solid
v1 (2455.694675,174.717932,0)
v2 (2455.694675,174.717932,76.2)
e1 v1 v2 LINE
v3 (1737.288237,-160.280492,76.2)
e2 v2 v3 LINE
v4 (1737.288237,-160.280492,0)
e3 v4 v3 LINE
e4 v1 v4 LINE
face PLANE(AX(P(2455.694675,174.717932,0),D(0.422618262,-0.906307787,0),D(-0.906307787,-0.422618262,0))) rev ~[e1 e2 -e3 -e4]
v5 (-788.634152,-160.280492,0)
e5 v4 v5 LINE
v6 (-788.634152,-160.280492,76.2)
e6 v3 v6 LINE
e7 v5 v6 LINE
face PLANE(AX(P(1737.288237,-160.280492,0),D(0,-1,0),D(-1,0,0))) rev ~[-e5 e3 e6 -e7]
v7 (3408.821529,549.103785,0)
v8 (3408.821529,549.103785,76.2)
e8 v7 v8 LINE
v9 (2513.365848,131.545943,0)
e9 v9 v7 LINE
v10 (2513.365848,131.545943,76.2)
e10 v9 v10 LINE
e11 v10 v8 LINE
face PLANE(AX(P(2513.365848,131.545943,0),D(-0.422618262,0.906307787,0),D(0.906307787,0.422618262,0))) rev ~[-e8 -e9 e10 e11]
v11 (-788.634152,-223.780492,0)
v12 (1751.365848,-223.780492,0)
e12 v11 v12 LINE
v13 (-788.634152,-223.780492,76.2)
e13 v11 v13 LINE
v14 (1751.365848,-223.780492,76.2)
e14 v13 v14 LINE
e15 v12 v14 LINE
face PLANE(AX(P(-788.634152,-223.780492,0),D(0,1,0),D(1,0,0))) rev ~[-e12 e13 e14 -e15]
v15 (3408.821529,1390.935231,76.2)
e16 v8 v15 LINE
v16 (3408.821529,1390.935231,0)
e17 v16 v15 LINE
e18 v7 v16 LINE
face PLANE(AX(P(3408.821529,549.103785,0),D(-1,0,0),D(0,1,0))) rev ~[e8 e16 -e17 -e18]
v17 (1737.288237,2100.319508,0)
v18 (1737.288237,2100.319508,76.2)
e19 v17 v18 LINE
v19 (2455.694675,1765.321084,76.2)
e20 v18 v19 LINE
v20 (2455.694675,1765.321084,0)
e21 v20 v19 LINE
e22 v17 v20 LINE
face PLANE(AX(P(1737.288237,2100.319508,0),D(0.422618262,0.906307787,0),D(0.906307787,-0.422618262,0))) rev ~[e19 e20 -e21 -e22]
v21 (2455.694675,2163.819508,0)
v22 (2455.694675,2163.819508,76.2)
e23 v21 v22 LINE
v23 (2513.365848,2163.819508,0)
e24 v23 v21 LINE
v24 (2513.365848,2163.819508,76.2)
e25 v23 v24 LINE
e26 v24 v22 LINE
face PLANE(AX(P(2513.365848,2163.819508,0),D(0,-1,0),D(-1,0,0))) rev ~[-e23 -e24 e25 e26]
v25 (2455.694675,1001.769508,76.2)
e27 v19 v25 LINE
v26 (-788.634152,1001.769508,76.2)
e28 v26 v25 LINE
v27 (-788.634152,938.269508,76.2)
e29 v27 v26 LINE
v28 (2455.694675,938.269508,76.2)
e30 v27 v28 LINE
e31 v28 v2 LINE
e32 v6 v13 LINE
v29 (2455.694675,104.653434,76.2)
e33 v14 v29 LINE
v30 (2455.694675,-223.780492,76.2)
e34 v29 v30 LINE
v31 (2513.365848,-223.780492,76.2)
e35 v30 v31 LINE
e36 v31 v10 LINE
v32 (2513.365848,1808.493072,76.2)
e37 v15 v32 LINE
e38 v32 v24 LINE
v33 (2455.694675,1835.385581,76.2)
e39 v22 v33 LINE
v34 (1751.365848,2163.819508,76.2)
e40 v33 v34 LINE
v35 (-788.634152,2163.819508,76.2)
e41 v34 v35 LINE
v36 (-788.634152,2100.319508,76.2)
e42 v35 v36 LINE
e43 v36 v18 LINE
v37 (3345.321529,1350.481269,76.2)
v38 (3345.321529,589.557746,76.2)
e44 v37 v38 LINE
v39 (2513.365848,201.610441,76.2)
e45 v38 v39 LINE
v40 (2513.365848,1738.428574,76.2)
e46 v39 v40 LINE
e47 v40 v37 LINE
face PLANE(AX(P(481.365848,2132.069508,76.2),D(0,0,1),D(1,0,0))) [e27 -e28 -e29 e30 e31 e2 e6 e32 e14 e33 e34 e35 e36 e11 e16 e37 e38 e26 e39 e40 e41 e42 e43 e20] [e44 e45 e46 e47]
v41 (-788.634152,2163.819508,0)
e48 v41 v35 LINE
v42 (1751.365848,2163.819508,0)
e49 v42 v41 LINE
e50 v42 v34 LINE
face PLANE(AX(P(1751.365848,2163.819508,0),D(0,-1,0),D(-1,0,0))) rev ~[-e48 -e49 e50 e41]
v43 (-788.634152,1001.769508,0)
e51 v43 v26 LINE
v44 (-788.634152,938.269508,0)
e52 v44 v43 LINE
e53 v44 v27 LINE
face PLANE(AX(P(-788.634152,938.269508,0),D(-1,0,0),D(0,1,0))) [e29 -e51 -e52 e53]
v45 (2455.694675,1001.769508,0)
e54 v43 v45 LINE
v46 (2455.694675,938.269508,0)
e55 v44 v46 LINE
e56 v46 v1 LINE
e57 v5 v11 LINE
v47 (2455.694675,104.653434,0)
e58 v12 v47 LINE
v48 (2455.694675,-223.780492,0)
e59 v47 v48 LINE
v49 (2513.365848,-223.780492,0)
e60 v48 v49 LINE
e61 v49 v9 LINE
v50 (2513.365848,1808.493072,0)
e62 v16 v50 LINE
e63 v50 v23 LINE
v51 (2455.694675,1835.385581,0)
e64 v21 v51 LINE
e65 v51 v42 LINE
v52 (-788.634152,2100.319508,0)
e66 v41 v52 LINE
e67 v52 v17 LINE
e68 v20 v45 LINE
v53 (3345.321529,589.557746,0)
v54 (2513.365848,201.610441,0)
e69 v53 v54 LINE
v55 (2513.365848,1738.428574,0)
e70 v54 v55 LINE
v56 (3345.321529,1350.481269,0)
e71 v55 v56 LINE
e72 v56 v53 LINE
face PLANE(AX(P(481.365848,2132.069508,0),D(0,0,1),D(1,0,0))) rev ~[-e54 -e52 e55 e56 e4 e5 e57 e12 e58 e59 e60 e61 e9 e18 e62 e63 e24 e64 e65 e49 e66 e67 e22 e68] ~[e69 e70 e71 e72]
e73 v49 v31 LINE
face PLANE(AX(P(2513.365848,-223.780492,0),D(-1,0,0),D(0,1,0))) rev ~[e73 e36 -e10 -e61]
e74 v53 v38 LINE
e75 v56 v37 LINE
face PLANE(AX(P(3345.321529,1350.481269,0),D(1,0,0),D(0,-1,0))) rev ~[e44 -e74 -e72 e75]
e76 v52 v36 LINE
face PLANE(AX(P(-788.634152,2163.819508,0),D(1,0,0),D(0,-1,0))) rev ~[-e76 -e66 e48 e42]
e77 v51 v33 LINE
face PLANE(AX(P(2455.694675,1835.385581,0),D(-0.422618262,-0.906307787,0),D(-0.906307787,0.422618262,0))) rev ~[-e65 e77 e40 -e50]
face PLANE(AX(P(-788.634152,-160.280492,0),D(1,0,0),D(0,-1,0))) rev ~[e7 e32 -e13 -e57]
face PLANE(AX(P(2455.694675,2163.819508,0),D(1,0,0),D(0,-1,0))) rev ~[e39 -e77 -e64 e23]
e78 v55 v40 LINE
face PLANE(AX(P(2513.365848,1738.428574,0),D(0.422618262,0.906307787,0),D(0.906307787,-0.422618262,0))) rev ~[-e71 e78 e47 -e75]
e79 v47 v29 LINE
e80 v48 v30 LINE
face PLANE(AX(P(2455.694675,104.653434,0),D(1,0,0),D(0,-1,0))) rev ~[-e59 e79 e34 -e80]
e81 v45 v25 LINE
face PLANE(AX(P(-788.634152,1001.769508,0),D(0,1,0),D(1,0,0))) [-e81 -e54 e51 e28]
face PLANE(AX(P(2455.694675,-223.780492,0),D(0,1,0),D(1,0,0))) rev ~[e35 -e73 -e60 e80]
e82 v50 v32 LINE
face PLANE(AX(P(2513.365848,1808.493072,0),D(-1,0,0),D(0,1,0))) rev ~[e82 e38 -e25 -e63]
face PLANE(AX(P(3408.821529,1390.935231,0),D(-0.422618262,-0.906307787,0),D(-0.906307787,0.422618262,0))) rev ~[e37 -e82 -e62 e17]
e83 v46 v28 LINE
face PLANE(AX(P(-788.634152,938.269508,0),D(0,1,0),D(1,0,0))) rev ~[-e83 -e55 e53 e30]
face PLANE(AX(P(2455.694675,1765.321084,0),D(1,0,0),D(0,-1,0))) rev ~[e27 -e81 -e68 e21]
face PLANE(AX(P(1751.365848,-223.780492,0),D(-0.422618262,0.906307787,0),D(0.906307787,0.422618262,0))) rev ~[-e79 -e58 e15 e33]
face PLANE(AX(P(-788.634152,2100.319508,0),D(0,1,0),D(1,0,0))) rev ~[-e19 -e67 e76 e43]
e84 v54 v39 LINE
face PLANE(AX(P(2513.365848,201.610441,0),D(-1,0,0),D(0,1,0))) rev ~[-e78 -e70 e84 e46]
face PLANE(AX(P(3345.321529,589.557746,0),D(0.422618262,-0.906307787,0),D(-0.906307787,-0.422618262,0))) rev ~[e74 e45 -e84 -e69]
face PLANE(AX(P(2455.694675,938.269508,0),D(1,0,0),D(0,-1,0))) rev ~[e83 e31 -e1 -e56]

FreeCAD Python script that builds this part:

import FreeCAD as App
import Part
import Sketcher
Q = App.Units.Quantity


def add_polygon(sketch, points):
    """Adds a closed chain of lines whose ends are joined by coincident constraints."""
    first, n = sketch.GeometryCount, len(points)
    for a, b in zip(points, points[1:] + points[:1]):
        sketch.addGeometry(Part.LineSegment(App.Vector(*a, 0), App.Vector(*b, 0)), False)
    for i in range(n):
        sketch.addConstraint(Sketcher.Constraint("Coincident", first + i, 2, first + (i + 1) % n, 1))

doc = App.newDocument("Part")
body = doc.addObject("PartDesign::Body", "Body")

# Sketch on XY plane
sketch1 = doc.addObject("Sketcher::SketchObject", "Sketch")
body.addObject(sketch1)
sketch1.AttachmentSupport = (doc.XY_Plane, [""])
sketch1.MapMode = "FlatFace"
add_polygon(sketch1, [(2456, 938), (2456, 175), (1737, -160), (-789, -160), (-789, -224), (1751, -224), (2456, 105), (2456, -224), (2513, -224), (2513, 132), (3409, 549), (3409, 1391), (2513, 1808), (2513, 2164), (2456, 2164), (2456, 1835), (1751, 2164), (-789, 2164), (-789, 2100), (1737, 2100), (2456, 1765), (2456, 1002), (-789, 1002), (-789, 938)])  # lines 0-23
add_polygon(sketch1, [(3345, 590), (2513, 202), (2513, 1738), (3345, 1350)])  # lines 24-27
sketch1.addConstraint(Sketcher.Constraint("Vertical", 0))
sketch1.addConstraint(Sketcher.Constraint("Horizontal", 2))
sketch1.addConstraint(Sketcher.Constraint("Vertical", 3))
sketch1.addConstraint(Sketcher.Constraint("Horizontal", 4))
sketch1.addConstraint(Sketcher.Constraint("Vertical", 6))
sketch1.addConstraint(Sketcher.Constraint("Horizontal", 7))
sketch1.addConstraint(Sketcher.Constraint("Vertical", 8))
sketch1.addConstraint(Sketcher.Constraint("Vertical", 10))
sketch1.addConstraint(Sketcher.Constraint("Vertical", 12))
sketch1.addConstraint(Sketcher.Constraint("Horizontal", 13))
sketch1.addConstraint(Sketcher.Constraint("Vertical", 14))
sketch1.addConstraint(Sketcher.Constraint("Horizontal", 16))
sketch1.addConstraint(Sketcher.Constraint("Vertical", 17))
sketch1.addConstraint(Sketcher.Constraint("Horizontal", 18))
sketch1.addConstraint(Sketcher.Constraint("Vertical", 20))
sketch1.addConstraint(Sketcher.Constraint("Horizontal", 21))
sketch1.addConstraint(Sketcher.Constraint("Vertical", 22))
sketch1.addConstraint(Sketcher.Constraint("Horizontal", 23))
sketch1.addConstraint(Sketcher.Constraint("Vertical", 25))
sketch1.addConstraint(Sketcher.Constraint("Vertical", 27))
sketch1.addConstraint(Sketcher.Constraint("Parallel", 1, 5))
sketch1.addConstraint(Sketcher.Constraint("Parallel", 5, 9))
sketch1.addConstraint(Sketcher.Constraint("Parallel", 11, 15))
sketch1.addConstraint(Sketcher.Constraint("Parallel", 15, 19))
sketch1.addConstraint(Sketcher.Constraint("Parallel", 9, 24))
sketch1.addConstraint(Sketcher.Constraint("Parallel", 19, 26))
sketch1.addConstraint(Sketcher.Constraint("Horizontal", 4, 2, 6, 2))
sketch1.addConstraint(Sketcher.Constraint("Horizontal", 13, 2, 15, 2))
sketch1.addConstraint(Sketcher.Constraint("Vertical", 0, 2, 5, 2))
sketch1.addConstraint(Sketcher.Constraint("Vertical", 8, 2, 11, 2))
sketch1.addConstraint(Sketcher.Constraint("Vertical", 6, 2, 13, 2))
sketch1.addConstraint(Sketcher.Constraint("Vertical", 4, 2, 15, 2))
sketch1.addConstraint(Sketcher.Constraint("Vertical", 3, 2, 16, 2))
sketch1.addConstraint(Sketcher.Constraint("Vertical", 1, 2, 18, 2))
sketch1.addConstraint(Sketcher.Constraint("Vertical", 14, 2, 19, 2))
sketch1.addConstraint(Sketcher.Constraint("Vertical", 17, 2, 21, 2))
sketch1.addConstraint(Sketcher.Constraint("Vertical", 12, 2, 24, 2))
sketch1.addConstraint(Sketcher.Constraint("Equal", 8, 12))
sketch1.addConstraint(Sketcher.Constraint("Equal", 6, 14))
sketch1.addConstraint(Sketcher.Constraint("Equal", 3, 17))
sketch1.addConstraint(Sketcher.Constraint("Equal", 0, 20))
sketch1.addConstraint(Sketcher.Constraint("Equal", 17, 22))
sketch1.addConstraint(Sketcher.Constraint("DistanceX", 4, 1, 4, 2, Q("100 in")))
sketch1.addConstraint(Sketcher.Constraint("DistanceY", 3, 2, 3, 1, Q("2.5 in")))
sketch1.addConstraint(Sketcher.Constraint("Angle", 1, Q("-155 deg")))
sketch1.addConstraint(Sketcher.Constraint("DistanceX", 4, 2, 7, 2, Q("30 in")))
sketch1.addConstraint(Sketcher.Constraint("DistanceY", 3, 2, 16, 2, Q("94 in")))
sketch1.addConstraint(Sketcher.Constraint("DistanceX", 26, 2, 10, 2, Q("2.5 in")))
sketch1.addConstraint(Sketcher.Constraint("Distance", 1, Q("792.673801 mm")))
sketch1.addConstraint(Sketcher.Constraint("DistanceX", 2, 2, 2, 1, Q("2525.922389 mm")))
sketch1.addConstraint(Sketcher.Constraint("DistanceY", 0, 2, 10, 2, Q("1216.217299 mm")))
sketch1.addConstraint(Sketcher.Constraint("DistanceY", 8, 1, 8, 2, Q("355.326436 mm")))
sketch1.addConstraint(Sketcher.Constraint("DistanceY", 25, 1, 25, 2, Q("1536.818133 mm")))
sketch1.addConstraint(Sketcher.Constraint("DistanceY", -1, 1, 0, 2, Q("174.717932 mm")))
sketch1.addConstraint(Sketcher.Constraint("DistanceX", -1, 1, 9, 2, Q("3408.821529 mm")))
sketch1.addConstraint(Sketcher.Constraint("DistanceY", -1, 1, 24, 2, Q("201.610441 mm")))
pad1 = doc.addObject("PartDesign::Pad", "Pad")
body.addObject(pad1)
pad1.Profile = sketch1
pad1.Length = Q("3 in")

doc.recompute()
